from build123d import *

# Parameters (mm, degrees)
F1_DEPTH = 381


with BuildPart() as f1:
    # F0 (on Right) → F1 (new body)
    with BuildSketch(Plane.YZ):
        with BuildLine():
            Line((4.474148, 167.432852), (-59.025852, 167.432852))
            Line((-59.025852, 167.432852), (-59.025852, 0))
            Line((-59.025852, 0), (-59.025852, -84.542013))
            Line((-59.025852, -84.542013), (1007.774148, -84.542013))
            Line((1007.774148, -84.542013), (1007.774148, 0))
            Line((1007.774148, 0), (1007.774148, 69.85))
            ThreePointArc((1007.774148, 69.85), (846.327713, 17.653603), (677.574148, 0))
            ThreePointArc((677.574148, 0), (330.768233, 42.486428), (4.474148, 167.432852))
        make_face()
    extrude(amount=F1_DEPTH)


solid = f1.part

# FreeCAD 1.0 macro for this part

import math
import FreeCAD as App
import Part
import Sketcher

V = App.Vector
Q = App.Units.Quantity

doc = App.newDocument("Part")
body = doc.addObject("PartDesign::Body", "Body")

sketch1 = doc.addObject("Sketcher::SketchObject", "Sketch")
body.addObject(sketch1)
sketch1.AttachmentSupport = (doc.YZ_Plane, [""])
sketch1.MapMode = "FlatFace"
sketch1.addGeometry(Part.LineSegment(V(4, 167, 0), V(-59, 167, 0)), False)
sketch1.addGeometry(Part.LineSegment(V(-59, 167, 0), V(-59, -85, 0)), False)
sketch1.addGeometry(Part.LineSegment(V(-59, -85, 0), V(1008, -85, 0)), False)
sketch1.addGeometry(Part.LineSegment(V(1008, -85, 0), V(1008, 70, 0)), False)
sketch1.addGeometry(Part.ArcOfCircle(Part.Circle(V(678, 815, 0), V(0, 0, 1), 815), math.radians(-90), math.radians(-66)), False)
sketch1.addGeometry(Part.ArcOfCircle(Part.Circle(V(678, 1437, 0), V(0, 0, 1), 1437), math.radians(-118), math.radians(-90)), False)
sketch1.addConstraint(Sketcher.Constraint("Coincident", 0, 2, 1, 1))
sketch1.addConstraint(Sketcher.Constraint("Coincident", 1, 2, 2, 1))
sketch1.addConstraint(Sketcher.Constraint("Coincident", 2, 2, 3, 1))
sketch1.addConstraint(Sketcher.Constraint("Coincident", 3, 2, 4, 2))
sketch1.addConstraint(Sketcher.Constraint("Tangent", 4, 1, 5, 2))
sketch1.addConstraint(Sketcher.Constraint("Coincident", 5, 1, 0, 1))
sketch1.addConstraint(Sketcher.Constraint("Horizontal", 0))
sketch1.addConstraint(Sketcher.Constraint("Vertical", 1))
sketch1.addConstraint(Sketcher.Constraint("Horizontal", 2))
sketch1.addConstraint(Sketcher.Constraint("Vertical", 3))
sketch1.addConstraint(Sketcher.Constraint("PointOnObject", 4, 1, -1))
sketch1.addConstraint(Sketcher.Constraint("Vertical", 5, 3, 4, 1))
sketch1.addConstraint(Sketcher.Constraint("DistanceX", 2, 1, 2, 2, Q("42 in")))
sketch1.addConstraint(Sketcher.Constraint("DistanceX", 0, 2, 0, 1, Q("2.5 in")))
sketch1.addConstraint(Sketcher.Constraint("Radius", 5, Q("56.5625001 in")))
sketch1.addConstraint(Sketcher.Constraint("DistanceX", 0, 2, 4, 3, Q("29 in")))
sketch1.addConstraint(Sketcher.Constraint("DistanceY", -1, 1, 3, 2, Q("2.75 in")))
sketch1.addConstraint(Sketcher.Constraint("DistanceY", 1, 2, 1, 1, 251.974865))
sketch1.addConstraint(Sketcher.Constraint("DistanceX", -1, 1, 5, 3, 677.574149))
pad1 = doc.addObject("PartDesign::Pad", "Pad")
body.addObject(pad1)
pad1.Profile = sketch1
pad1.Length = Q("15 in")

doc.recompute()
